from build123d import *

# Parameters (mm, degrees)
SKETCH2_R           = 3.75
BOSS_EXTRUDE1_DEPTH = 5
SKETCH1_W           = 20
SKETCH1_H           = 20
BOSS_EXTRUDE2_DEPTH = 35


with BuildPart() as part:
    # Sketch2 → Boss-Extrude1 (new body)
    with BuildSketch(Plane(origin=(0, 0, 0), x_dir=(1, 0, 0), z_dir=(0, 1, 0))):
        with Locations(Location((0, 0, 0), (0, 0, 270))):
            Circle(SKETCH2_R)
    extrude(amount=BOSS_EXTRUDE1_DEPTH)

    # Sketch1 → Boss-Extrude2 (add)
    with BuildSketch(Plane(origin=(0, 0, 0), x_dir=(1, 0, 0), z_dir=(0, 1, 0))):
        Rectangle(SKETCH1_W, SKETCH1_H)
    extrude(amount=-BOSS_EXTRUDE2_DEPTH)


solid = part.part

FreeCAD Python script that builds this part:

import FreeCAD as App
import Part
import Sketcher
from FreeCAD import Vector

doc = App.newDocument("Part")
body = doc.addObject("PartDesign::Body", "Body")

# Sketch on XZ plane
sketch1 = body.newObject("Sketcher::SketchObject", "Sketch")
sketch1.AttachmentSupport = (doc.getObject("XZ_Plane"), [""])
sketch1.MapMode = "FlatFace"
sketch1.addGeometry(Part.Circle(Vector(0, 0, 0), Vector(0, 0, 1), 3.75), False)
sketch1.addConstraint([
    Sketcher.Constraint("Coincident", 0, 3, -1, 1),
    Sketcher.Constraint("Diameter", 0, 7.5),
])
pad1 = body.newObject("PartDesign::Pad", "Pad")
pad1.Profile = sketch1
pad1.Length = 5
pad1.Reversed = True

# Sketch on XZ plane
sketch2 = body.newObject("Sketcher::SketchObject", "Sketch001")
sketch2.AttachmentSupport = (doc.getObject("XZ_Plane"), [""])
sketch2.MapMode = "FlatFace"
sketch2.addGeometry([
    Part.LineSegment(Vector(-10, -10, 0), Vector(-10, 10, 0)),
    Part.LineSegment(Vector(-10, 10, 0), Vector(10, 10, 0)),
    Part.LineSegment(Vector(10, 10, 0), Vector(10, -10, 0)),
    Part.LineSegment(Vector(10, -10, 0), Vector(-10, -10, 0)),
], False)
sketch2.addConstraint([
    Sketcher.Constraint("Coincident", 0, 2, 1, 1),
    Sketcher.Constraint("Coincident", 1, 2, 2, 1),
    Sketcher.Constraint("Coincident", 2, 2, 3, 1),
    Sketcher.Constraint("Coincident", 3, 2, 0, 1),
    Sketcher.Constraint("Vertical", 0),
    Sketcher.Constraint("Horizontal", 1),
    Sketcher.Constraint("Vertical", 2),
    Sketcher.Constraint("Horizontal", 3),
    Sketcher.Constraint("Symmetric", 0, 2, 2, 2, -1, 1),
    Sketcher.Constraint("Equal", 3, 0),
    Sketcher.Constraint("DistanceX", 1, 1, 1, 2, 20.0),
])
pad2 = body.newObject("PartDesign::Pad", "Pad001")
pad2.Profile = sketch2
pad2.Length = 35

doc.recompute()
